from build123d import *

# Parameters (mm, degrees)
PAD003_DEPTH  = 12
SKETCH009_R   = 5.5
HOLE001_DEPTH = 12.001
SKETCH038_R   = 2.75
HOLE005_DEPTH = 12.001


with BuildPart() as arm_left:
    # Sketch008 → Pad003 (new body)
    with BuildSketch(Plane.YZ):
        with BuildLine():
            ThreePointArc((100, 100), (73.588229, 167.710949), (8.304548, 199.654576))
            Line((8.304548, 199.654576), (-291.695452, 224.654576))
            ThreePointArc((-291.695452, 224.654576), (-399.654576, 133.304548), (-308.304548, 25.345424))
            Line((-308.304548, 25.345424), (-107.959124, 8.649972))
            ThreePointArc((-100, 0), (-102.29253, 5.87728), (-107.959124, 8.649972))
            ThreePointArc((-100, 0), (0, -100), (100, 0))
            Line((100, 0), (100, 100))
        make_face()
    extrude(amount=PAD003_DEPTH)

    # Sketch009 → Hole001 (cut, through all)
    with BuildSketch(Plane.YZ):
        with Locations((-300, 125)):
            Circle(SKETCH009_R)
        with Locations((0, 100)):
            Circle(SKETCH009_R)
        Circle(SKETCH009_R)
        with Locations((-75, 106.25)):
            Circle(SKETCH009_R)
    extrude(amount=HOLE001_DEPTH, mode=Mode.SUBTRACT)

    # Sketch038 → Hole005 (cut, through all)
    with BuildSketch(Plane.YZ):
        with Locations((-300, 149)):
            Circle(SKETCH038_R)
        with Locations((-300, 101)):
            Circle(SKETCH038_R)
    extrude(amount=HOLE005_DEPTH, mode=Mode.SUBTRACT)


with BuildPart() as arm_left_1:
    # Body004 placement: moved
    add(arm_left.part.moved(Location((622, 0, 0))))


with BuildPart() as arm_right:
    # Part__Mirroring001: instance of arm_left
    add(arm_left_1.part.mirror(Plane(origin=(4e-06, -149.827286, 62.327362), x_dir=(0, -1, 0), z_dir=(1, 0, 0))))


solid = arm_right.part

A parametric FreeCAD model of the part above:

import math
import FreeCAD as App
import Part
import Sketcher

V = App.Vector
Q = App.Units.Quantity

doc = App.newDocument("Part")
body = doc.addObject("PartDesign::Body", "Body")

sketch1 = body.newObject("Sketcher::SketchObject", "Sketch")
sketch1.AttachmentSupport = (doc.getObject("YZ_Plane"), [""])
sketch1.MapMode = "FlatFace"
sketch1.addGeometry(Part.ArcOfCircle(Part.Circle(V(0, 100, 0), V(0, 0, 1), 100), math.radians(0), math.radians(85)), False)
sketch1.addGeometry(Part.LineSegment(V(8, 200, 0), V(-292, 225, 0)), False)
sketch1.addGeometry(Part.ArcOfCircle(Part.Circle(V(-300, 125, 0), V(0, 0, 1), 100), math.radians(85), math.radians(265)), False)
sketch1.addGeometry(Part.LineSegment(V(-308, 25, 0), V(-108, 9, 0)), False)
sketch1.addGeometry(Part.ArcOfCircle(Part.Circle(V(-109, 0, 0), V(0, 0, 1), 9), math.radians(0), math.radians(85)), False)
sketch1.addGeometry(Part.ArcOfCircle(Part.Circle(V(0, 0, 0), V(0, 0, 1), 100), math.radians(180), math.radians(360)), False)
sketch1.addGeometry(Part.LineSegment(V(100, 0, 0), V(100, 100, 0)), False)
sketch1.addConstraint(Sketcher.Constraint("Tangent", 0, 2, 1, 1))
sketch1.addConstraint(Sketcher.Constraint("Tangent", 1, 2, 2, 1))
sketch1.addConstraint(Sketcher.Constraint("Tangent", 2, 2, 3, 1))
sketch1.addConstraint(Sketcher.Constraint("Tangent", 3, 2, 4, 2))
sketch1.addConstraint(Sketcher.Constraint("Tangent", 4, 1, 5, 1))
sketch1.addConstraint(Sketcher.Constraint("Tangent", 5, 2, 6, 1))
sketch1.addConstraint(Sketcher.Constraint("Tangent", 6, 2, 0, 1))
sketch1.addConstraint(Sketcher.Constraint("Vertical", 6))
sketch1.addConstraint(Sketcher.Constraint("Coincident", 5, 3, -1, 1))
sketch1.addConstraint(Sketcher.Constraint("Equal", 0, 2))
sketch1.addConstraint(Sketcher.Constraint("Equal", 2, 5))
sketch1.addConstraint(Sketcher.Constraint("PointOnObject", 4, 3, -1))
sketch1.addConstraint(Sketcher.Constraint("Parallel", 1, 3))
sketch1.addConstraint(Sketcher.Constraint("Radius", 0, Q("99.999999 mm")))
sketch1.addConstraint(Sketcher.Constraint("DistanceY", 6, 1, 6, 2, Q("100 mm")))
sketch1.addConstraint(Sketcher.Constraint("DistanceX", 2, 3, -1, 1, Q("300 mm")))
sketch1.addConstraint(Sketcher.Constraint("DistanceY", -1, 1, 2, 3, Q("125 mm")))
pad1 = body.newObject("PartDesign::Pad", "Pad")
pad1.Profile = sketch1
pad1.Length = 12

sketch2 = body.newObject("Sketcher::SketchObject", "Sketch001")
sketch2.AttachmentSupport = (doc.getObject("YZ_Plane"), [""])
sketch2.MapMode = "FlatFace"
sketch2.addGeometry(Part.Circle(V(-300, 125, 0), V(0, 0, 1), 6), False)
sketch2.addGeometry(Part.Circle(V(0, 100, 0), V(0, 0, 1), 6), False)
sketch2.addGeometry(Part.Circle(V(0, 0, 0), V(0, 0, 1), 6), False)
sketch2.addGeometry(Part.Circle(V(-75, 106, 0), V(0, 0, 1), 6), False)
sketch2.addConstraint(Sketcher.Constraint("Coincident", 2, 3, -1, 1))
sketch2.addConstraint(Sketcher.Constraint("Equal", 0, 1))
sketch2.addConstraint(Sketcher.Constraint("Equal", 1, 2))
sketch2.addConstraint(Sketcher.Constraint("Equal", 2, 3))
sketch2.addConstraint(Sketcher.Constraint("PointOnObject", 1, 3, -2))
sketch2.addConstraint(Sketcher.Constraint("Diameter", 0, Q("11 mm")))
sketch2.addConstraint(Sketcher.Constraint("DistanceX", 0, 3, -1, 1, Q("300 mm")))
sketch2.addConstraint(Sketcher.Constraint("DistanceY", -1, 1, 0, 3, Q("125 mm")))
sketch2.addConstraint(Sketcher.Constraint("DistanceY", -1, 1, 1, 3, Q("100 mm")))
sketch2.addConstraint(Sketcher.Constraint("DistanceX", 3, 3, -1, 1, Q("75 mm")))
sketch2.addConstraint(Sketcher.Constraint("DistanceY", -1, 1, 3, 3, Q("106.25 mm")))
pocket1 = body.newObject("PartDesign::Pocket", "Pocket")
pocket1.Profile = sketch2
pocket1.Type = "ThroughAll"
pocket1.Reversed = True

sketch3 = body.newObject("Sketcher::SketchObject", "Sketch002")
sketch3.AttachmentSupport = (doc.getObject("YZ_Plane"), [""])
sketch3.MapMode = "FlatFace"
sketch3.addGeometry(Part.Circle(V(-300, 149, 0), V(0, 0, 1), 2.8), False)
sketch3.addGeometry(Part.Circle(V(-300, 101, 0), V(0, 0, 1), 2.8), False)
sketch3.addConstraint(Sketcher.Constraint("Equal", 0, 1))
sketch3.addConstraint(Sketcher.Constraint("Vertical", 0, 3, 1, 3))
sketch3.addConstraint(Sketcher.Constraint("Diameter", 0, Q("5.5 mm")))
sketch3.addConstraint(Sketcher.Constraint("DistanceX", 0, 3, -1, 1, Q("300 mm")))
sketch3.addConstraint(Sketcher.Constraint("DistanceY", -1, 1, 0, 3, Q("149 mm")))
sketch3.addConstraint(Sketcher.Constraint("DistanceY", -1, 1, 1, 3, Q("101 mm")))
pocket2 = body.newObject("PartDesign::Pocket", "Pocket001")
pocket2.Profile = sketch3
pocket2.Type = "ThroughAll"
pocket2.Reversed = True
body2 = doc.addObject("PartDesign::Body", "Body001")
doc.recompute()

body.Placement = App.Placement(V(622, 0, 0), App.Rotation(V(0, 0, 1), 0))
boolean = body2.newObject("PartDesign::Boolean", "Boolean")
boolean.Type = "Fuse"
boolean.addObjects([body])
body3 = doc.addObject("PartDesign::Body", "Body002")
doc.recompute()

mirroring = doc.addObject("Part::Mirroring", "Mirroring")
mirroring.Source = body2
mirroring.Base = V(0.000004, -149.827286, 62.327362)
mirroring.Normal = V(1, 0, 0)
body3.BaseFeature = mirroring
doc.recompute()
body2.Visibility = False
mirroring.Visibility = False

doc.recompute()
